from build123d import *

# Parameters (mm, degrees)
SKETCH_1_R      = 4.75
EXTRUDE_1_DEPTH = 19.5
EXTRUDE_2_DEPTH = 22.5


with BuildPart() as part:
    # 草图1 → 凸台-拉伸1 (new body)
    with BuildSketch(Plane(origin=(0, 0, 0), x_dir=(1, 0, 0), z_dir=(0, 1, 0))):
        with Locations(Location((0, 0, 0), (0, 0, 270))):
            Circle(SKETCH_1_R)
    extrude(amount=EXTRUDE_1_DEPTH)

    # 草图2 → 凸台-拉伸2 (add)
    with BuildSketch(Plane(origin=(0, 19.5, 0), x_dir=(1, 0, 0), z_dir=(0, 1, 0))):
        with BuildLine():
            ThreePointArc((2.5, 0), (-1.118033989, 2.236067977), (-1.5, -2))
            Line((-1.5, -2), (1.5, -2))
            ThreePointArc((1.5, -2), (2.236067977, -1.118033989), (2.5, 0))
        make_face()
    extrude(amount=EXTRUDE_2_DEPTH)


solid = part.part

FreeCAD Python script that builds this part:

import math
import FreeCAD as App
import Part
import Sketcher

doc = App.newDocument("Part")
body = doc.addObject("PartDesign::Body", "Body")

# Sketch on XZ plane
sketch1 = body.newObject("Sketcher::SketchObject", "Sketch")
sketch1.AttachmentSupport = (doc.getObject("XZ_Plane"), [""])
sketch1.MapMode = "FlatFace"
sketch1.addGeometry(Part.Circle(App.Vector(0, 0, 0), App.Vector(0, 0, 1), 4.75), False)
sketch1.addConstraint([
    Sketcher.Constraint("Coincident", 0, 3, -1, 1),
    Sketcher.Constraint("Diameter", 0, 9.5),
])
pad1 = body.newObject("PartDesign::Pad", "Pad")
pad1.Profile = sketch1
pad1.Length = 19.5
pad1.Reversed = True

# Sketch on XZ plane
sketch2 = body.newObject("Sketcher::SketchObject", "Sketch001")
sketch2.AttachmentSupport = (doc.getObject("XZ_Plane"), [""])
sketch2.MapMode = "FlatFace"
sketch2.AttachmentOffset = App.Placement(App.Vector(0, 0, -19.5), App.Rotation())
sketch2.addGeometry([
    Part.ArcOfCircle(Part.Circle(App.Vector(0, 0, 0), App.Vector(0, 0, 1), 2.5), math.radians(126.869898), math.radians(360)),
    Part.LineSegment(App.Vector(-1.5, 2, 0), App.Vector(1.5, 2, 0)),
    Part.ArcOfCircle(Part.Circle(App.Vector(0, 0, 0), App.Vector(0, 0, 1), 2.5), math.radians(0), math.radians(53.130102)),
], False)
sketch2.addConstraint([
    Sketcher.Constraint("Coincident", 0, 1, 1, 1),
    Sketcher.Constraint("Coincident", 1, 2, 2, 2),
    Sketcher.Constraint("Tangent", 2, 1, 0, 2),
    Sketcher.Constraint("Horizontal", 1),
    Sketcher.Constraint("Coincident", 0, 3, -1, 1),
    Sketcher.Constraint("Equal", 0, 2),
    Sketcher.Constraint("PointOnObject", 2, 1, -1),
    Sketcher.Constraint("Radius", 0, 2.5),
    Sketcher.Constraint("DistanceX", 1, 1, 1, 2, 3.0),
])
pad2 = body.newObject("PartDesign::Pad", "Pad001")
pad2.Profile = sketch2
pad2.Length = 22.5
pad2.Reversed = True

doc.recompute()
